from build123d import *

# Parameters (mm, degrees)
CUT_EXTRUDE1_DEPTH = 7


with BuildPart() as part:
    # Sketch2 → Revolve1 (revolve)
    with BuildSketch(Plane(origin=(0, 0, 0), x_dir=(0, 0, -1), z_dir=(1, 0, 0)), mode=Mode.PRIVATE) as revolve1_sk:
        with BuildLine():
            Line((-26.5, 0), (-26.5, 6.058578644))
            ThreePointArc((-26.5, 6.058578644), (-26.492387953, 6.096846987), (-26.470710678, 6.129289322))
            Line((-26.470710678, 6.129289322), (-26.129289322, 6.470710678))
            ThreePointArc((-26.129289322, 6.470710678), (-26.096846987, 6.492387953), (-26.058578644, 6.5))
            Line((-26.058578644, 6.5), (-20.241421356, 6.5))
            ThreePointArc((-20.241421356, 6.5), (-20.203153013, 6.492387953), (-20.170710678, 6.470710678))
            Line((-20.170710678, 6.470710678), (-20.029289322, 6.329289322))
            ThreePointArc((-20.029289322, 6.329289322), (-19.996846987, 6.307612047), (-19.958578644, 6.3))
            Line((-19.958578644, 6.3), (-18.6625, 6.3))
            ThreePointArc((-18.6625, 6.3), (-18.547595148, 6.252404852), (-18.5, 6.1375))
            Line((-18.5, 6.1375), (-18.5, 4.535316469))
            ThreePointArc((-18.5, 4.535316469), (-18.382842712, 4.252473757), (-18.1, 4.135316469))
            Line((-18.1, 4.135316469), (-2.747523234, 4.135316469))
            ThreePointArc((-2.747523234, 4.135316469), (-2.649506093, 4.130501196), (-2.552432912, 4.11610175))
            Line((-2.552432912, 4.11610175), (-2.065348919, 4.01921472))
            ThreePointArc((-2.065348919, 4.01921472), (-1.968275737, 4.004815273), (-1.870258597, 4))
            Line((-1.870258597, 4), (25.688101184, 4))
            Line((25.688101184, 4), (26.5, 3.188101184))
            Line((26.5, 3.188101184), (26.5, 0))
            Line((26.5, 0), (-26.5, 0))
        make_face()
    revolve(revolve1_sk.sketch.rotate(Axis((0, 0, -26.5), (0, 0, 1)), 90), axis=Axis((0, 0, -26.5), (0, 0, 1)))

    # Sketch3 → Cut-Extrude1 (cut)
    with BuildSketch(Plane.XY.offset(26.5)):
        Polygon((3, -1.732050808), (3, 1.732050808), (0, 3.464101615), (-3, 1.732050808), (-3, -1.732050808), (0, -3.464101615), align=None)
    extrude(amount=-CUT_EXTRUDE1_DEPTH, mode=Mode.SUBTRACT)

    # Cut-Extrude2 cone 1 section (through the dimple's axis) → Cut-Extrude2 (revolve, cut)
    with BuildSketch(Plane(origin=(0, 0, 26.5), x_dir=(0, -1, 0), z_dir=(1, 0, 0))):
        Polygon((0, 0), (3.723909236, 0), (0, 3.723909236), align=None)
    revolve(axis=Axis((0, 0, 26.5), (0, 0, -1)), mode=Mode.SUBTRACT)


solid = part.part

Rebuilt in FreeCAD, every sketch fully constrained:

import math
import FreeCAD as App
import Part
import Sketcher
from FreeCAD import Vector
Q = App.Units.Quantity

doc = App.newDocument("Part")
body = doc.addObject("PartDesign::Body", "Body")

# Sketch on YZ plane
sketch1 = body.newObject("Sketcher::SketchObject", "Sketch")
sketch1.AttachmentSupport = (doc.getObject("YZ_Plane"), [""])
sketch1.MapMode = "FlatFace"
sketch1.addGeometry(Part.LineSegment(Vector(6.058579, 26.5, 0), Vector(0, 26.5, 0)), False)
sketch1.addGeometry(Part.LineSegment(Vector(0, 26.5, 0), Vector(0, -26.5, 0)), False)
sketch1.addGeometry(Part.LineSegment(Vector(0, -26.5, 0), Vector(3.188101, -26.5, 0)), False)
sketch1.addGeometry(Part.LineSegment(Vector(3.188101, -26.5, 0), Vector(4, -25.688101, 0)), False)
sketch1.addGeometry(Part.LineSegment(Vector(4, -25.688101, 0), Vector(4, 1.870259, 0)), False)
sketch1.addGeometry(Part.ArcOfCircle(Part.Circle(Vector(5, 1.870259, 0), Vector(0, 0, 1), 1), math.radians(168.749999), math.radians(180)), False)
sketch1.addGeometry(Part.LineSegment(Vector(4.019215, 2.065349, 0), Vector(4.116102, 2.552433, 0)), False)
sketch1.addGeometry(Part.ArcOfCircle(Part.Circle(Vector(3.135316, 2.747523, 0), Vector(0, 0, 1), 1), math.radians(-11.25), math.radians(0)), False)
sketch1.addGeometry(Part.LineSegment(Vector(4.135316, 2.747523, 0), Vector(4.135316, 18.1, 0)), False)
sketch1.addGeometry(Part.ArcOfCircle(Part.Circle(Vector(4.535316, 18.1, 0), Vector(0, 0, 1), 0.4), math.radians(90), math.radians(180)), False)
sketch1.addGeometry(Part.LineSegment(Vector(4.535316, 18.5, 0), Vector(6.1375, 18.5, 0)), False)
sketch1.addGeometry(Part.ArcOfCircle(Part.Circle(Vector(6.1375, 18.6625, 0), Vector(0, 0, 1), 0.1625), math.radians(-90), math.radians(0)), False)
sketch1.addGeometry(Part.LineSegment(Vector(6.3, 18.6625, 0), Vector(6.3, 19.958579, 0)), False)
sketch1.addGeometry(Part.ArcOfCircle(Part.Circle(Vector(6.4, 19.958579, 0), Vector(0, 0, 1), 0.1), math.radians(135.000001), math.radians(179.999999)), False)
sketch1.addGeometry(Part.LineSegment(Vector(6.329289, 20.029289, 0), Vector(6.470711, 20.170711, 0)), False)
sketch1.addGeometry(Part.ArcOfCircle(Part.Circle(Vector(6.4, 20.241421, 0), Vector(0, 0, 1), 0.1), math.radians(-44.999999), math.radians(-0.000001)), False)
sketch1.addGeometry(Part.LineSegment(Vector(6.5, 20.241421, 0), Vector(6.5, 26.058579, 0)), False)
sketch1.addGeometry(Part.ArcOfCircle(Part.Circle(Vector(6.4, 26.058579, 0), Vector(0, 0, 1), 0.1), math.radians(0.000001), math.radians(44.999999)), False)
sketch1.addGeometry(Part.LineSegment(Vector(6.470711, 26.129289, 0), Vector(6.129289, 26.470711, 0)), False)
sketch1.addGeometry(Part.ArcOfCircle(Part.Circle(Vector(6.058579, 26.4, 0), Vector(0, 0, 1), 0.1), math.radians(45.000001), math.radians(89.999999)), False)
sketch1.addConstraint(Sketcher.Constraint("Coincident", 0, 2, 1, 1))
sketch1.addConstraint(Sketcher.Constraint("Coincident", 1, 2, 2, 1))
sketch1.addConstraint(Sketcher.Constraint("Coincident", 2, 2, 3, 1))
sketch1.addConstraint(Sketcher.Constraint("Coincident", 3, 2, 4, 1))
sketch1.addConstraint(Sketcher.Constraint("Tangent", 4, 2, 5, 2))
sketch1.addConstraint(Sketcher.Constraint("Tangent", 5, 1, 6, 1))
sketch1.addConstraint(Sketcher.Constraint("Tangent", 6, 2, 7, 1))
sketch1.addConstraint(Sketcher.Constraint("Tangent", 7, 2, 8, 1))
sketch1.addConstraint(Sketcher.Constraint("Tangent", 8, 2, 9, 2))
sketch1.addConstraint(Sketcher.Constraint("Tangent", 9, 1, 10, 1))
sketch1.addConstraint(Sketcher.Constraint("Tangent", 10, 2, 11, 1))
sketch1.addConstraint(Sketcher.Constraint("Tangent", 11, 2, 12, 1))
sketch1.addConstraint(Sketcher.Constraint("Tangent", 12, 2, 13, 2))
sketch1.addConstraint(Sketcher.Constraint("Tangent", 13, 1, 14, 1))
sketch1.addConstraint(Sketcher.Constraint("Tangent", 14, 2, 15, 1))
sketch1.addConstraint(Sketcher.Constraint("Tangent", 15, 2, 16, 1))
sketch1.addConstraint(Sketcher.Constraint("Tangent", 16, 2, 17, 1))
sketch1.addConstraint(Sketcher.Constraint("Tangent", 17, 2, 18, 1))
sketch1.addConstraint(Sketcher.Constraint("Tangent", 18, 2, 19, 1))
sketch1.addConstraint(Sketcher.Constraint("Tangent", 19, 2, 0, 1))
sketch1.addConstraint(Sketcher.Constraint("Horizontal", 0))
sketch1.addConstraint(Sketcher.Constraint("Vertical", 1))
sketch1.addConstraint(Sketcher.Constraint("Horizontal", 2))
sketch1.addConstraint(Sketcher.Constraint("Vertical", 4))
sketch1.addConstraint(Sketcher.Constraint("Vertical", 8))
sketch1.addConstraint(Sketcher.Constraint("Horizontal", 10))
sketch1.addConstraint(Sketcher.Constraint("Vertical", 12))
sketch1.addConstraint(Sketcher.Constraint("Vertical", 16))
sketch1.addConstraint(Sketcher.Constraint("Equal", 5, 7))
sketch1.addConstraint(Sketcher.Constraint("Equal", 13, 15))
sketch1.addConstraint(Sketcher.Constraint("Equal", 15, 17))
sketch1.addConstraint(Sketcher.Constraint("Equal", 17, 19))
sketch1.addConstraint(Sketcher.Constraint("Symmetric", 0, 2, 1, 2, -1, 1))
sketch1.addConstraint(Sketcher.Constraint("Parallel", 3, 14))
sketch1.addConstraint(Sketcher.Constraint("Perpendicular", 14, 18))
sketch1.addConstraint(Sketcher.Constraint("Vertical", 13, 3, 15, 3))
sketch1.addConstraint(Sketcher.Constraint("Vertical", 14, 2, 17, 2))
sketch1.addConstraint(Sketcher.Constraint("Radius", 5, Q("1 mm")))
sketch1.addConstraint(Sketcher.Constraint("Radius", 9, Q("0.4 mm")))
sketch1.addConstraint(Sketcher.Constraint("Radius", 13, Q("0.1 mm")))
sketch1.addConstraint(Sketcher.Constraint("DistanceY", 1, 2, 1, 1, Q("53 mm")))
sketch1.addConstraint(Sketcher.Constraint("DistanceX", -1, 1, 5, 3, Q("5 mm")))
sketch1.addConstraint(Sketcher.Constraint("DistanceY", -1, 1, 9, 3, Q("18.1 mm")))
sketch1.addConstraint(Sketcher.Constraint("DistanceX", -1, 1, 13, 3, Q("6.4 mm")))
sketch1.addConstraint(Sketcher.Constraint("Angle", 6, Q("78.75 deg")))
sketch1.addConstraint(Sketcher.Constraint("Radius", 11, Q("0.1625 mm")))
sketch1.addConstraint(Sketcher.Constraint("DistanceY", 13, 3, 17, 3, Q("6.1 mm")))
sketch1.addConstraint(Sketcher.Constraint("DistanceX", 2, 1, 2, 2, Q("3.188101 mm")))
sketch1.addConstraint(Sketcher.Constraint("DistanceX", 0, 2, 0, 1, Q("6.058579 mm")))
sketch1.addConstraint(Sketcher.Constraint("DistanceY", 4, 1, 4, 2, Q("27.55836 mm")))
sketch1.addConstraint(Sketcher.Constraint("DistanceX", -1, 1, 6, 2, Q("4.116102 mm")))
revolution = body.newObject("PartDesign::Revolution", "Revolution")
revolution.Profile = sketch1
revolution.ReferenceAxis = (sketch1, ["V_Axis"])
revolution.Angle = 360

# Sketch on XY plane
sketch2 = body.newObject("Sketcher::SketchObject", "Sketch001")
sketch2.AttachmentSupport = (doc.getObject("XY_Plane"), [""])
sketch2.MapMode = "FlatFace"
sketch2.AttachmentOffset = App.Placement(Vector(0, 0, 26.5), App.Rotation())
sketch2.addGeometry(Part.LineSegment(Vector(3, -1.732051, 0), Vector(3, 1.732051, 0)), False)
sketch2.addGeometry(Part.LineSegment(Vector(3, 1.732051, 0), Vector(0, 3.464102, 0)), False)
sketch2.addGeometry(Part.LineSegment(Vector(0, 3.464102, 0), Vector(-3, 1.732051, 0)), False)
sketch2.addGeometry(Part.LineSegment(Vector(-3, 1.732051, 0), Vector(-3, -1.732051, 0)), False)
sketch2.addGeometry(Part.LineSegment(Vector(-3, -1.732051, 0), Vector(0, -3.464102, 0)), False)
sketch2.addGeometry(Part.LineSegment(Vector(0, -3.464102, 0), Vector(3, -1.732051, 0)), False)
sketch2.addConstraint(Sketcher.Constraint("Coincident", 0, 2, 1, 1))
sketch2.addConstraint(Sketcher.Constraint("Coincident", 1, 2, 2, 1))
sketch2.addConstraint(Sketcher.Constraint("Coincident", 2, 2, 3, 1))
sketch2.addConstraint(Sketcher.Constraint("Coincident", 3, 2, 4, 1))
sketch2.addConstraint(Sketcher.Constraint("Coincident", 4, 2, 5, 1))
sketch2.addConstraint(Sketcher.Constraint("Coincident", 5, 2, 0, 1))
sketch2.addConstraint(Sketcher.Constraint("Vertical", 0))
sketch2.addConstraint(Sketcher.Constraint("Vertical", 3))
sketch2.addConstraint(Sketcher.Constraint("Symmetric", 0, 2, 3, 2, -1, 1))
sketch2.addConstraint(Sketcher.Constraint("Symmetric", 1, 2, 4, 2, -1, 1))
sketch2.addConstraint(Sketcher.Constraint("PointOnObject", 1, 2, -2))
sketch2.addConstraint(Sketcher.Constraint("Parallel", 2, 5))
sketch2.addConstraint(Sketcher.Constraint("Horizontal", 0, 2, 2, 2))
sketch2.addConstraint(Sketcher.Constraint("Angle", 1, Q("150 deg")))
sketch2.addConstraint(Sketcher.Constraint("DistanceX", -1, 1, 0, 2, Q("3 mm")))
sketch2.addConstraint(Sketcher.Constraint("DistanceY", 0, 1, 0, 2, Q("3.464102 mm")))
pocket1 = body.newObject("PartDesign::Pocket", "Pocket")
pocket1.Profile = sketch2
pocket1.Length = 7

# Sketch on YZ plane
sketch3 = body.newObject("Sketcher::SketchObject", "Sketch002")
sketch3.AttachmentSupport = (doc.getObject("YZ_Plane"), [""])
sketch3.MapMode = "FlatFace"
sketch3.addGeometry(Part.LineSegment(Vector(0, 26.5, 0), Vector(-3.723909, 26.5, 0)), False)
sketch3.addGeometry(Part.LineSegment(Vector(-3.723909, 26.5, 0), Vector(0, 22.776091, 0)), False)
sketch3.addGeometry(Part.LineSegment(Vector(0, 22.776091, 0), Vector(0, 26.5, 0)), False)
sketch3.addConstraint(Sketcher.Constraint("Coincident", 0, 2, 1, 1))
sketch3.addConstraint(Sketcher.Constraint("Coincident", 1, 2, 2, 1))
sketch3.addConstraint(Sketcher.Constraint("Coincident", 2, 2, 0, 1))
sketch3.addConstraint(Sketcher.Constraint("Horizontal", 0))
sketch3.addConstraint(Sketcher.Constraint("Vertical", 2))
sketch3.addConstraint(Sketcher.Constraint("PointOnObject", 1, 2, -2))
sketch3.addConstraint(Sketcher.Constraint("Equal", 0, 2))
sketch3.addConstraint(Sketcher.Constraint("DistanceY", -1, 1, 0, 2, Q("26.5 mm")))
sketch3.addConstraint(Sketcher.Constraint("DistanceX", 0, 2, 0, 1, Q("3.723909 mm")))
groove = body.newObject("PartDesign::Groove", "Groove")
groove.Profile = sketch3
groove.ReferenceAxis = (sketch3, ["V_Axis"])
groove.Angle = 360

doc.recompute()
